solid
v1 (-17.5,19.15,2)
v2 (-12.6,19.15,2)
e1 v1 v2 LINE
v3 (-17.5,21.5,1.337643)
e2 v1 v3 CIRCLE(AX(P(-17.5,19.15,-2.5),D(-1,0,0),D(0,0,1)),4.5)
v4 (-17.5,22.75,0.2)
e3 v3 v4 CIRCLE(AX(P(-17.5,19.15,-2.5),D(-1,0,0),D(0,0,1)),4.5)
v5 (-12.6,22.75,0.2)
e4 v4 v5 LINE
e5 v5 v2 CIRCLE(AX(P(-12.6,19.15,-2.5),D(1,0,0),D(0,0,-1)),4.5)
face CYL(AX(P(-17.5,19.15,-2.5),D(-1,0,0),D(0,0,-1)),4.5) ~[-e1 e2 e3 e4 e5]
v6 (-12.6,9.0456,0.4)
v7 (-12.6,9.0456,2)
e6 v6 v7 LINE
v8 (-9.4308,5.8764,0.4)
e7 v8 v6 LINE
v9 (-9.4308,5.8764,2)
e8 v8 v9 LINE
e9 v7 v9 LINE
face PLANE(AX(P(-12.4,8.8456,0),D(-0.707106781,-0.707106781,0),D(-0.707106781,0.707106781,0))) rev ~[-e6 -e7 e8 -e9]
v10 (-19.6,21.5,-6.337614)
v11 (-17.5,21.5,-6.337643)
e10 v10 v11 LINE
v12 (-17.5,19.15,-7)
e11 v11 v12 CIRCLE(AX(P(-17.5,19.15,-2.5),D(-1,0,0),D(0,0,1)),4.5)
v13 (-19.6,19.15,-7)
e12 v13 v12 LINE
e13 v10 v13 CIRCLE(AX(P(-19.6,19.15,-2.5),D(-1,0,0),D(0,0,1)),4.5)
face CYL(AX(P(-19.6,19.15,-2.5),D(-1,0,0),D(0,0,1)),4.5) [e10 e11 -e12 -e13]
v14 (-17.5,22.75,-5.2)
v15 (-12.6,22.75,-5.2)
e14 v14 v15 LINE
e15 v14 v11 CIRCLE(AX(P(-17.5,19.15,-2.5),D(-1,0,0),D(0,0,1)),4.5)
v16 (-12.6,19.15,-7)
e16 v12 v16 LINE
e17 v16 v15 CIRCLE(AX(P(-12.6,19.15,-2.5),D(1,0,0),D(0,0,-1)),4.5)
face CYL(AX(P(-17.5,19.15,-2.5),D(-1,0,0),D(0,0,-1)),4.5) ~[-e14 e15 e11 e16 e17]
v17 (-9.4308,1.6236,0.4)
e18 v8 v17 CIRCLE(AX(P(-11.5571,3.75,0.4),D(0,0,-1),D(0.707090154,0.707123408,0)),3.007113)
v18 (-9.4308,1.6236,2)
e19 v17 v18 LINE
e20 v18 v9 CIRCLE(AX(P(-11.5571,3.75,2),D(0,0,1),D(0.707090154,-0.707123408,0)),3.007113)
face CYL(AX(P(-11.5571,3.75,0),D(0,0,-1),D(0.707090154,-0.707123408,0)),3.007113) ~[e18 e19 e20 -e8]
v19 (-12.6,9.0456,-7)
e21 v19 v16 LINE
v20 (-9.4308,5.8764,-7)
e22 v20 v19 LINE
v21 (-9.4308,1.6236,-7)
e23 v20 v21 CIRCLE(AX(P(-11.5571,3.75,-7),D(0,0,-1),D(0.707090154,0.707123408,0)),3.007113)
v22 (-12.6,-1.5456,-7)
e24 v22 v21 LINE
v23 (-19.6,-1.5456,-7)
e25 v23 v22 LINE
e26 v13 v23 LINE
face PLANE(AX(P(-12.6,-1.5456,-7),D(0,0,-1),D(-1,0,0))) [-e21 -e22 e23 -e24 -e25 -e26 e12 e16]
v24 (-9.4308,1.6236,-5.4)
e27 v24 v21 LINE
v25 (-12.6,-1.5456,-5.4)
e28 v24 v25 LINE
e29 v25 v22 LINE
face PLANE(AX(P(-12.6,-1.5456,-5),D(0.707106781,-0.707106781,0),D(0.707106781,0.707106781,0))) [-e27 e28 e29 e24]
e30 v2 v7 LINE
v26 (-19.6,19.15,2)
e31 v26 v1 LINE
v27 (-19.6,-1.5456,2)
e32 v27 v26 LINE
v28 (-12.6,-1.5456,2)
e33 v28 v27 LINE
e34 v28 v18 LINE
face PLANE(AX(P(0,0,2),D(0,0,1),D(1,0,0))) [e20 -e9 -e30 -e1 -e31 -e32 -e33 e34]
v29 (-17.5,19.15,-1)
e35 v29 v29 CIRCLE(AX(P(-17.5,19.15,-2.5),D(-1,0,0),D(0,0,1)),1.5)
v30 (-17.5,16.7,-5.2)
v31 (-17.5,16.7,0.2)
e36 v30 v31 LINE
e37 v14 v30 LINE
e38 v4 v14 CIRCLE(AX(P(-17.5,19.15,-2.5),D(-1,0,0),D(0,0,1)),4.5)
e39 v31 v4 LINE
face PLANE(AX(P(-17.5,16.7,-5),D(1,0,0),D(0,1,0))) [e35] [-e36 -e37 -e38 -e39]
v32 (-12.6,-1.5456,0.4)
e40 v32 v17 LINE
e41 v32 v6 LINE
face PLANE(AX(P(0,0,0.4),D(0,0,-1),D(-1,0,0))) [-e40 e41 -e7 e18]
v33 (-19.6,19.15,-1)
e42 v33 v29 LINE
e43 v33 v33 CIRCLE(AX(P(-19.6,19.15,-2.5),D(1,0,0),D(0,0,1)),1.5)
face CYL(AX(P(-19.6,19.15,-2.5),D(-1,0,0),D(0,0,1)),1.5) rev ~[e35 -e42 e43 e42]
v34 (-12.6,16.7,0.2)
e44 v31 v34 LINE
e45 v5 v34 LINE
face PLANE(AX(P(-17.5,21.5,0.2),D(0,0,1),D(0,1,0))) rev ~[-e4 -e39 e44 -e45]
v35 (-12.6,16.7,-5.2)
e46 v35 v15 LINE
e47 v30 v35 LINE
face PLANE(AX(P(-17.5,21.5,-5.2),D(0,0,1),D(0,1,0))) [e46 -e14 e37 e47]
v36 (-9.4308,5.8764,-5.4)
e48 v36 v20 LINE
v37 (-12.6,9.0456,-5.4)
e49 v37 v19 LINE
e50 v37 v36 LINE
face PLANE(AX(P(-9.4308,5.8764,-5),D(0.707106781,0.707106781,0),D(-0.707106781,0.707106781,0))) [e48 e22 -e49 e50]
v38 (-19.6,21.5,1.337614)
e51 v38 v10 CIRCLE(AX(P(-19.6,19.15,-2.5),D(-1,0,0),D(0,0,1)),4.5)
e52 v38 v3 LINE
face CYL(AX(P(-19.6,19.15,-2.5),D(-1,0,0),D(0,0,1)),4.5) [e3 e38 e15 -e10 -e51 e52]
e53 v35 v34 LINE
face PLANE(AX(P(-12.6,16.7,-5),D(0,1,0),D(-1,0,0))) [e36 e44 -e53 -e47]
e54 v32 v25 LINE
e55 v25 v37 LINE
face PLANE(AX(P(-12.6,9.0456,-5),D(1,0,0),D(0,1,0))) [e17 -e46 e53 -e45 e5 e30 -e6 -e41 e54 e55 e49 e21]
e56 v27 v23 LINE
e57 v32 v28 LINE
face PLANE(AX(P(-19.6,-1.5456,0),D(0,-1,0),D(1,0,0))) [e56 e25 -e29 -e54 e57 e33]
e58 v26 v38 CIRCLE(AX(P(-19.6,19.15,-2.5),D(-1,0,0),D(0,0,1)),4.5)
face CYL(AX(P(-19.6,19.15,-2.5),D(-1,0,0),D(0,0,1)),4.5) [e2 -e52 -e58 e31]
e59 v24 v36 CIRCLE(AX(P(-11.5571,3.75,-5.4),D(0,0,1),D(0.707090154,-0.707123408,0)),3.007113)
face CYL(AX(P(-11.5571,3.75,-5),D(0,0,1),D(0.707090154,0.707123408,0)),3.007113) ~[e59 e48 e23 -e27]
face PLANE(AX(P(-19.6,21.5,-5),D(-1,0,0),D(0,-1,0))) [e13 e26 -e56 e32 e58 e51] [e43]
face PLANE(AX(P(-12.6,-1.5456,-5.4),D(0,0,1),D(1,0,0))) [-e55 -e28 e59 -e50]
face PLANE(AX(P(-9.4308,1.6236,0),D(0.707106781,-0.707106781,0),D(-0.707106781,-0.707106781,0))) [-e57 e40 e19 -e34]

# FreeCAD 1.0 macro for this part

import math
import FreeCAD as App
import Part
import Sketcher

V = App.Vector

doc = App.newDocument("Part")
body = doc.addObject("PartDesign::Body", "Body")

sketch1 = body.newObject("Sketcher::SketchObject", "Sketch")
sketch1.AttachmentSupport = (doc.getObject("XY_Plane"), [""])
sketch1.MapMode = "FlatFace"
sketch1.addGeometry([
    Part.LineSegment(V(-12.6, 9, 0), V(-12.6, 16.7, 0)),
    Part.LineSegment(V(-12.6, 16.7, 0), V(-17.5, 16.7, 0)),
    Part.LineSegment(V(-17.5, 16.7, 0), V(-17.5, 21.5, 0)),
    Part.LineSegment(V(-17.5, 21.5, 0), V(-19.6, 21.5, 0)),
    Part.LineSegment(V(-19.6, 21.5, 0), V(-19.6, -1.5, 0)),
    Part.LineSegment(V(-19.6, -1.5, 0), V(-12.6, -1.5, 0)),
    Part.LineSegment(V(-12.6, -1.5, 0), V(-9.4, 1.6, 0)),
    Part.ArcOfCircle(Part.Circle(V(-11.6, 3.8, 0), V(0, 0, 1), 3), math.radians(-45), math.radians(45)),
    Part.LineSegment(V(-9.4, 5.9, 0), V(-12.6, 9, 0)),
], False)
sketch1.addConstraint([
    Sketcher.Constraint("Coincident", 0, 2, 1, 1),
    Sketcher.Constraint("Coincident", 1, 2, 2, 1),
    Sketcher.Constraint("Coincident", 2, 2, 3, 1),
    Sketcher.Constraint("Coincident", 3, 2, 4, 1),
    Sketcher.Constraint("Coincident", 4, 2, 5, 1),
    Sketcher.Constraint("Coincident", 5, 2, 6, 1),
    Sketcher.Constraint("Tangent", 6, 2, 7, 1),
    Sketcher.Constraint("Tangent", 7, 2, 8, 1),
    Sketcher.Constraint("Coincident", 8, 2, 0, 1),
    Sketcher.Constraint("Vertical", 0),
    Sketcher.Constraint("Horizontal", 1),
    Sketcher.Constraint("Vertical", 2),
    Sketcher.Constraint("Horizontal", 3),
    Sketcher.Constraint("Vertical", 4),
    Sketcher.Constraint("Horizontal", 5),
    Sketcher.Constraint("Perpendicular", 6, 8),
    Sketcher.Constraint("Vertical", 0, 2, 5, 2),
    Sketcher.Constraint("Vertical", 6, 2, 7, 2),
    Sketcher.Constraint("DistanceX", 5, 1, 5, 2, 7.0),
    Sketcher.Constraint("DistanceX", 1, 2, 1, 1, 4.9),
    Sketcher.Constraint("DistanceY", 2, 1, 2, 2, 4.8),
    Sketcher.Constraint("Radius", 7, 3.007),
    Sketcher.Constraint("DistanceX", 0, 2, -1, 1, 12.6),
    Sketcher.Constraint("DistanceY", -1, 1, 0, 2, 16.7),
    Sketcher.Constraint("DistanceY", -1, 1, 7, 3, 3.75),
    Sketcher.Constraint("Distance", 6, 4.482),
])
pad1 = body.newObject("PartDesign::Pad", "Pad")
pad1.Profile = sketch1
pad1.Length = 2

sketch2 = body.newObject("Sketcher::SketchObject", "Sketch001")
sketch2.AttachmentSupport = (doc.getObject("XY_Plane"), [""])
sketch2.MapMode = "FlatFace"
sketch2.addGeometry([
    Part.LineSegment(V(-12.6, -1.5, 0), V(-19.6, -1.5, 0)),
    Part.LineSegment(V(-19.6, -1.5, 0), V(-19.6, 21.5, 0)),
    Part.LineSegment(V(-19.6, 21.5, 0), V(-17.5, 21.5, 0)),
    Part.LineSegment(V(-17.5, 21.5, 0), V(-17.5, 16.7, 0)),
    Part.LineSegment(V(-17.5, 16.7, 0), V(-12.6, 16.7, 0)),
    Part.LineSegment(V(-12.6, 16.7, 0), V(-12.6, -1.5, 0)),
], False)
sketch2.addConstraint([
    Sketcher.Constraint("Coincident", 0, 2, 1, 1),
    Sketcher.Constraint("Coincident", 1, 2, 2, 1),
    Sketcher.Constraint("Coincident", 2, 2, 3, 1),
    Sketcher.Constraint("Coincident", 3, 2, 4, 1),
    Sketcher.Constraint("Coincident", 4, 2, 5, 1),
    Sketcher.Constraint("Coincident", 5, 2, 0, 1),
    Sketcher.Constraint("Horizontal", 0),
    Sketcher.Constraint("Vertical", 1),
    Sketcher.Constraint("Horizontal", 2),
    Sketcher.Constraint("Vertical", 3),
    Sketcher.Constraint("Horizontal", 4),
    Sketcher.Constraint("Vertical", 5),
    Sketcher.Constraint("DistanceX", 0, 2, 0, 1, 7.0),
    Sketcher.Constraint("DistanceX", 2, 1, 2, 2, 2.1),
    Sketcher.Constraint("DistanceY", 3, 2, 3, 1, 4.8),
    Sketcher.Constraint("DistanceX", 0, 2, -1, 1, 19.6),
    Sketcher.Constraint("DistanceY", -1, 1, 1, 2, 21.5),
    Sketcher.Constraint("DistanceY", 1, 1, 1, 2, 23.0456),
])
pad2 = body.newObject("PartDesign::Pad", "Pad001")
pad2.Profile = sketch2
pad2.Length = 5
pad2.Reversed = True

sketch3 = body.newObject("Sketcher::SketchObject", "Sketch002")
sketch3.AttachmentSupport = (doc.getObject("XY_Plane"), [""])
sketch3.MapMode = "FlatFace"
sketch3.AttachmentOffset = App.Placement(V(0, 0, -5), App.Rotation())
sketch3.addGeometry([
    Part.LineSegment(V(-12.6, 16.7, 0), V(-12.6, 9, 0)),
    Part.LineSegment(V(-12.6, 9, 0), V(-9.4, 5.9, 0)),
    Part.ArcOfCircle(Part.Circle(V(-11.6, 3.8, 0), V(0, 0, 1), 3), math.radians(-45), math.radians(45)),
    Part.LineSegment(V(-9.4, 1.6, 0), V(-12.6, -1.5, 0)),
    Part.LineSegment(V(-12.6, -1.5, 0), V(-19.6, -1.5, 0)),
    Part.LineSegment(V(-19.6, -1.5, 0), V(-19.6, 21.5, 0)),
    Part.LineSegment(V(-19.6, 21.5, 0), V(-17.5, 21.5, 0)),
    Part.LineSegment(V(-17.5, 21.5, 0), V(-17.5, 16.7, 0)),
    Part.LineSegment(V(-17.5, 16.7, 0), V(-12.6, 16.7, 0)),
], False)
sketch3.addConstraint([
    Sketcher.Constraint("Coincident", 0, 2, 1, 1),
    Sketcher.Constraint("Tangent", 1, 2, 2, 2),
    Sketcher.Constraint("Tangent", 2, 1, 3, 1),
    Sketcher.Constraint("Coincident", 3, 2, 4, 1),
    Sketcher.Constraint("Coincident", 4, 2, 5, 1),
    Sketcher.Constraint("Coincident", 5, 2, 6, 1),
    Sketcher.Constraint("Coincident", 6, 2, 7, 1),
    Sketcher.Constraint("Coincident", 7, 2, 8, 1),
    Sketcher.Constraint("Coincident", 8, 2, 0, 1),
    Sketcher.Constraint("Vertical", 0),
    Sketcher.Constraint("Horizontal", 4),
    Sketcher.Constraint("Vertical", 5),
    Sketcher.Constraint("Horizontal", 6),
    Sketcher.Constraint("Vertical", 7),
    Sketcher.Constraint("Horizontal", 8),
    Sketcher.Constraint("Perpendicular", 1, 3),
    Sketcher.Constraint("Vertical", 1, 2, 2, 1),
    Sketcher.Constraint("Vertical", 0, 2, 3, 2),
    Sketcher.Constraint("DistanceX", 4, 2, 4, 1, 7.0),
    Sketcher.Constraint("DistanceX", 6, 1, 6, 2, 2.1),
    Sketcher.Constraint("DistanceY", 7, 2, 7, 1, 4.8),
    Sketcher.Constraint("Radius", 2, 3.007),
    Sketcher.Constraint("DistanceX", 0, 2, -1, 1, 12.6),
    Sketcher.Constraint("DistanceY", -1, 1, 5, 2, 21.5),
    Sketcher.Constraint("DistanceY", -1, 1, 2, 3, 3.75),
    Sketcher.Constraint("Distance", 1, 4.482),
])
pad3 = body.newObject("PartDesign::Pad", "Pad002")
pad3.Profile = sketch3
pad3.Length = 2
pad3.Reversed = True

sketch4 = body.newObject("Sketcher::SketchObject", "Sketch003")
sketch4.AttachmentSupport = (doc.getObject("YZ_Plane"), [""])
sketch4.MapMode = "FlatFace"
sketch4.AttachmentOffset = App.Placement(V(0, 0, -19.6), App.Rotation())
sketch4.addGeometry(Part.Circle(V(19.1, -2.5, 0), V(0, 0, 1), 1.5), False)
sketch4.addConstraint([
    Sketcher.Constraint("Diameter", 0, 3.0),
    Sketcher.Constraint("DistanceY", 0, 3, -1, 1, 2.5),
    Sketcher.Constraint("DistanceX", -1, 1, 0, 3, 19.15),
])
pocket1 = body.newObject("PartDesign::Pocket", "Pocket")
pocket1.Profile = sketch4
pocket1.Length = 2.75
pocket1.Reversed = True

sketch5 = body.newObject("Sketcher::SketchObject", "Sketch004")
sketch5.AttachmentSupport = (doc.getObject("YZ_Plane"), [""])
sketch5.MapMode = "FlatFace"
sketch5.AttachmentOffset = App.Placement(V(0, 0, -19.6), App.Rotation())
sketch5.addGeometry([
    Part.LineSegment(V(21.5, -6.3, 0), V(21.5, 1.3, 0)),
    Part.ArcOfCircle(Part.Circle(V(19.1, -2.5, 0), V(0, 0, 1), 4.5), math.radians(-59), math.radians(59)),
], False)
sketch5.addConstraint([
    Sketcher.Constraint("Coincident", 0, 1, 1, 1),
    Sketcher.Constraint("Coincident", 1, 2, 0, 2),
    Sketcher.Constraint("Vertical", 0),
    Sketcher.Constraint("Radius", 1, 4.5),
    Sketcher.Constraint("DistanceY", 1, 3, -1, 1, 2.5),
    Sketcher.Constraint("DistanceX", -1, 1, 0, 1, 21.5),
    Sketcher.Constraint("DistanceX", -1, 1, 1, 3, 19.15),
])
pad4 = body.newObject("PartDesign::Pad", "Pad003")
pad4.Profile = sketch5
pad4.Length = 2.1

sketch6 = body.newObject("Sketcher::SketchObject", "Sketch005")
sketch6.AttachmentSupport = (doc.getObject("YZ_Plane"), [""])
sketch6.MapMode = "FlatFace"
sketch6.AttachmentOffset = App.Placement(V(0, 0, -19.6), App.Rotation())
sketch6.addGeometry([
    Part.LineSegment(V(21.5, 2, 0), V(21.5, 1.3, 0)),
    Part.ArcOfCircle(Part.Circle(V(19.1, -2.5, 0), V(0, 0, 1), 4.5), math.radians(59), math.radians(90)),
    Part.LineSegment(V(19.1, 2, 0), V(21.5, 2, 0)),
    Part.ArcOfCircle(Part.Circle(V(19.1, -2.5, 0), V(0, 0, 1), 4.5), math.radians(-90), math.radians(-59)),
    Part.LineSegment(V(21.5, -6.3, 0), V(21.5, -7, 0)),
    Part.LineSegment(V(21.5, -7, 0), V(19.1, -7, 0)),
], False)
sketch6.addConstraint([
    Sketcher.Constraint("Coincident", 0, 2, 1, 1),
    Sketcher.Constraint("Tangent", 1, 2, 2, 1),
    Sketcher.Constraint("Coincident", 2, 2, 0, 1),
    Sketcher.Constraint("Coincident", 3, 2, 4, 1),
    Sketcher.Constraint("Coincident", 4, 2, 5, 1),
    Sketcher.Constraint("Tangent", 5, 2, 3, 1),
    Sketcher.Constraint("Vertical", 0),
    Sketcher.Constraint("Horizontal", 2),
    Sketcher.Constraint("Vertical", 4),
    Sketcher.Constraint("Horizontal", 5),
    Sketcher.Constraint("Coincident", 3, 3, 1, 3),
    Sketcher.Constraint("Equal", 1, 3),
    Sketcher.Constraint("Vertical", 2, 2, 3, 2),
    Sketcher.Constraint("Radius", 1, 4.5),
    Sketcher.Constraint("DistanceY", -1, 1, 1, 2, 2.0),
    Sketcher.Constraint("DistanceX", 2, 1, 2, 2, 2.35),
    Sketcher.Constraint("DistanceX", -1, 1, 0, 2, 21.5),
])
pocket2 = body.newObject("PartDesign::Pocket", "Pocket001")
pocket2.Profile = sketch6
pocket2.Length = 10
pocket2.Reversed = True

sketch7 = body.newObject("Sketcher::SketchObject", "Sketch006")
sketch7.AttachmentSupport = (doc.getObject("YZ_Plane"), [""])
sketch7.MapMode = "FlatFace"
sketch7.AttachmentOffset = App.Placement(V(0, 0, -17.5), App.Rotation())
sketch7.addGeometry([
    Part.LineSegment(V(22.8, -5.2, 0), V(16.7, -5.2, 0)),
    Part.LineSegment(V(16.7, -5.2, 0), V(16.7, -7, 0)),
    Part.LineSegment(V(16.7, -7, 0), V(19.1, -7, 0)),
    Part.ArcOfCircle(Part.Circle(V(19.1, -2.5, 0), V(0, 0, 1), 4.5), math.radians(-90), math.radians(-37)),
    Part.LineSegment(V(16.7, 0.2, 0), V(22.8, 0.2, 0)),
    Part.ArcOfCircle(Part.Circle(V(19.1, -2.5, 0), V(0, 0, 1), 4.5), math.radians(37), math.radians(90)),
    Part.LineSegment(V(19.1, 2, 0), V(16.7, 2, 0)),
    Part.LineSegment(V(16.7, 2, 0), V(16.7, 0.2, 0)),
], False)
sketch7.addConstraint([
    Sketcher.Constraint("Coincident", 0, 2, 1, 1),
    Sketcher.Constraint("Coincident", 1, 2, 2, 1),
    Sketcher.Constraint("Tangent", 2, 2, 3, 1),
    Sketcher.Constraint("Coincident", 3, 2, 0, 1),
    Sketcher.Constraint("Coincident", 4, 2, 5, 1),
    Sketcher.Constraint("Tangent", 5, 2, 6, 1),
    Sketcher.Constraint("Coincident", 6, 2, 7, 1),
    Sketcher.Constraint("Coincident", 7, 2, 4, 1),
    Sketcher.Constraint("Horizontal", 0),
    Sketcher.Constraint("Vertical", 1),
    Sketcher.Constraint("Horizontal", 2),
    Sketcher.Constraint("Horizontal", 4),
    Sketcher.Constraint("Horizontal", 6),
    Sketcher.Constraint("Vertical", 7),
    Sketcher.Constraint("Coincident", 5, 3, 3, 3),
    Sketcher.Constraint("Equal", 3, 5),
    Sketcher.Constraint("Vertical", 3, 2, 4, 2),
    Sketcher.Constraint("Vertical", 1, 2, 6, 2),
    Sketcher.Constraint("DistanceY", -1, 1, 4, 2, 0.2),
    Sketcher.Constraint("Radius", 3, 4.5),
    Sketcher.Constraint("DistanceY", 1, 2, 1, 1, 1.8),
    Sketcher.Constraint("DistanceX", 0, 2, 0, 1, 6.05),
    Sketcher.Constraint("DistanceX", -1, 1, 0, 2, 16.7),
])
pad5 = body.newObject("PartDesign::Pad", "Pad004")
pad5.Profile = sketch7
pad5.Length = 4.9

sketch8 = body.newObject("Sketcher::SketchObject", "Sketch007")
sketch8.AttachmentSupport = (doc.getObject("XY_Plane"), [""])
sketch8.MapMode = "FlatFace"
sketch8.addGeometry([
    Part.LineSegment(V(-9.4, 1.6, 0), V(-12.6, -1.5, 0)),
    Part.LineSegment(V(-12.6, -1.5, 0), V(-12.6, 9, 0)),
    Part.LineSegment(V(-12.6, 9, 0), V(-9.4, 5.9, 0)),
    Part.ArcOfCircle(Part.Circle(V(-11.6, 3.8, 0), V(0, 0, 1), 3), math.radians(-45), math.radians(45)),
], False)
sketch8.addConstraint([
    Sketcher.Constraint("Coincident", 0, 2, 1, 1),
    Sketcher.Constraint("Coincident", 1, 2, 2, 1),
    Sketcher.Constraint("Tangent", 2, 2, 3, 2),
    Sketcher.Constraint("Tangent", 3, 1, 0, 1),
    Sketcher.Constraint("Vertical", 1),
    Sketcher.Constraint("Perpendicular", 0, 2),
    Sketcher.Constraint("Vertical", 2, 2, 3, 1),
    Sketcher.Constraint("Radius", 3, 3.007),
    Sketcher.Constraint("DistanceX", 0, 2, -1, 1, 12.6),
    Sketcher.Constraint("DistanceY", -1, 1, 3, 3, 3.75),
    Sketcher.Constraint("Distance", 0, 4.482),
])
pocket3 = body.newObject("PartDesign::Pocket", "Pocket002")
pocket3.Profile = sketch8
pocket3.Length = 0.4
pocket3.Reversed = True

sketch9 = body.newObject("Sketcher::SketchObject", "Sketch008")
sketch9.AttachmentSupport = (doc.getObject("XY_Plane"), [""])
sketch9.MapMode = "FlatFace"
sketch9.AttachmentOffset = App.Placement(V(0, 0, -5), App.Rotation())
sketch9.addGeometry([
    Part.LineSegment(V(-12.6, 9, 0), V(-12.6, -1.5, 0)),
    Part.LineSegment(V(-12.6, -1.5, 0), V(-9.4, 1.6, 0)),
    Part.ArcOfCircle(Part.Circle(V(-11.6, 3.8, 0), V(0, 0, 1), 3), math.radians(-45), math.radians(45)),
    Part.LineSegment(V(-9.4, 5.9, 0), V(-12.6, 9, 0)),
], False)
sketch9.addConstraint([
    Sketcher.Constraint("Coincident", 0, 2, 1, 1),
    Sketcher.Constraint("Tangent", 1, 2, 2, 1),
    Sketcher.Constraint("Tangent", 2, 2, 3, 1),
    Sketcher.Constraint("Coincident", 3, 2, 0, 1),
    Sketcher.Constraint("Vertical", 0),
    Sketcher.Constraint("Perpendicular", 1, 3),
    Sketcher.Constraint("Vertical", 1, 2, 2, 2),
    Sketcher.Constraint("Radius", 2, 3.007),
    Sketcher.Constraint("DistanceX", 0, 2, -1, 1, 12.6),
    Sketcher.Constraint("DistanceY", -1, 1, 2, 3, 3.75),
    Sketcher.Constraint("Distance", 1, 4.482),
])
pocket4 = body.newObject("PartDesign::Pocket", "Pocket003")
pocket4.Profile = sketch9
pocket4.Length = 0.4

doc.recompute()
